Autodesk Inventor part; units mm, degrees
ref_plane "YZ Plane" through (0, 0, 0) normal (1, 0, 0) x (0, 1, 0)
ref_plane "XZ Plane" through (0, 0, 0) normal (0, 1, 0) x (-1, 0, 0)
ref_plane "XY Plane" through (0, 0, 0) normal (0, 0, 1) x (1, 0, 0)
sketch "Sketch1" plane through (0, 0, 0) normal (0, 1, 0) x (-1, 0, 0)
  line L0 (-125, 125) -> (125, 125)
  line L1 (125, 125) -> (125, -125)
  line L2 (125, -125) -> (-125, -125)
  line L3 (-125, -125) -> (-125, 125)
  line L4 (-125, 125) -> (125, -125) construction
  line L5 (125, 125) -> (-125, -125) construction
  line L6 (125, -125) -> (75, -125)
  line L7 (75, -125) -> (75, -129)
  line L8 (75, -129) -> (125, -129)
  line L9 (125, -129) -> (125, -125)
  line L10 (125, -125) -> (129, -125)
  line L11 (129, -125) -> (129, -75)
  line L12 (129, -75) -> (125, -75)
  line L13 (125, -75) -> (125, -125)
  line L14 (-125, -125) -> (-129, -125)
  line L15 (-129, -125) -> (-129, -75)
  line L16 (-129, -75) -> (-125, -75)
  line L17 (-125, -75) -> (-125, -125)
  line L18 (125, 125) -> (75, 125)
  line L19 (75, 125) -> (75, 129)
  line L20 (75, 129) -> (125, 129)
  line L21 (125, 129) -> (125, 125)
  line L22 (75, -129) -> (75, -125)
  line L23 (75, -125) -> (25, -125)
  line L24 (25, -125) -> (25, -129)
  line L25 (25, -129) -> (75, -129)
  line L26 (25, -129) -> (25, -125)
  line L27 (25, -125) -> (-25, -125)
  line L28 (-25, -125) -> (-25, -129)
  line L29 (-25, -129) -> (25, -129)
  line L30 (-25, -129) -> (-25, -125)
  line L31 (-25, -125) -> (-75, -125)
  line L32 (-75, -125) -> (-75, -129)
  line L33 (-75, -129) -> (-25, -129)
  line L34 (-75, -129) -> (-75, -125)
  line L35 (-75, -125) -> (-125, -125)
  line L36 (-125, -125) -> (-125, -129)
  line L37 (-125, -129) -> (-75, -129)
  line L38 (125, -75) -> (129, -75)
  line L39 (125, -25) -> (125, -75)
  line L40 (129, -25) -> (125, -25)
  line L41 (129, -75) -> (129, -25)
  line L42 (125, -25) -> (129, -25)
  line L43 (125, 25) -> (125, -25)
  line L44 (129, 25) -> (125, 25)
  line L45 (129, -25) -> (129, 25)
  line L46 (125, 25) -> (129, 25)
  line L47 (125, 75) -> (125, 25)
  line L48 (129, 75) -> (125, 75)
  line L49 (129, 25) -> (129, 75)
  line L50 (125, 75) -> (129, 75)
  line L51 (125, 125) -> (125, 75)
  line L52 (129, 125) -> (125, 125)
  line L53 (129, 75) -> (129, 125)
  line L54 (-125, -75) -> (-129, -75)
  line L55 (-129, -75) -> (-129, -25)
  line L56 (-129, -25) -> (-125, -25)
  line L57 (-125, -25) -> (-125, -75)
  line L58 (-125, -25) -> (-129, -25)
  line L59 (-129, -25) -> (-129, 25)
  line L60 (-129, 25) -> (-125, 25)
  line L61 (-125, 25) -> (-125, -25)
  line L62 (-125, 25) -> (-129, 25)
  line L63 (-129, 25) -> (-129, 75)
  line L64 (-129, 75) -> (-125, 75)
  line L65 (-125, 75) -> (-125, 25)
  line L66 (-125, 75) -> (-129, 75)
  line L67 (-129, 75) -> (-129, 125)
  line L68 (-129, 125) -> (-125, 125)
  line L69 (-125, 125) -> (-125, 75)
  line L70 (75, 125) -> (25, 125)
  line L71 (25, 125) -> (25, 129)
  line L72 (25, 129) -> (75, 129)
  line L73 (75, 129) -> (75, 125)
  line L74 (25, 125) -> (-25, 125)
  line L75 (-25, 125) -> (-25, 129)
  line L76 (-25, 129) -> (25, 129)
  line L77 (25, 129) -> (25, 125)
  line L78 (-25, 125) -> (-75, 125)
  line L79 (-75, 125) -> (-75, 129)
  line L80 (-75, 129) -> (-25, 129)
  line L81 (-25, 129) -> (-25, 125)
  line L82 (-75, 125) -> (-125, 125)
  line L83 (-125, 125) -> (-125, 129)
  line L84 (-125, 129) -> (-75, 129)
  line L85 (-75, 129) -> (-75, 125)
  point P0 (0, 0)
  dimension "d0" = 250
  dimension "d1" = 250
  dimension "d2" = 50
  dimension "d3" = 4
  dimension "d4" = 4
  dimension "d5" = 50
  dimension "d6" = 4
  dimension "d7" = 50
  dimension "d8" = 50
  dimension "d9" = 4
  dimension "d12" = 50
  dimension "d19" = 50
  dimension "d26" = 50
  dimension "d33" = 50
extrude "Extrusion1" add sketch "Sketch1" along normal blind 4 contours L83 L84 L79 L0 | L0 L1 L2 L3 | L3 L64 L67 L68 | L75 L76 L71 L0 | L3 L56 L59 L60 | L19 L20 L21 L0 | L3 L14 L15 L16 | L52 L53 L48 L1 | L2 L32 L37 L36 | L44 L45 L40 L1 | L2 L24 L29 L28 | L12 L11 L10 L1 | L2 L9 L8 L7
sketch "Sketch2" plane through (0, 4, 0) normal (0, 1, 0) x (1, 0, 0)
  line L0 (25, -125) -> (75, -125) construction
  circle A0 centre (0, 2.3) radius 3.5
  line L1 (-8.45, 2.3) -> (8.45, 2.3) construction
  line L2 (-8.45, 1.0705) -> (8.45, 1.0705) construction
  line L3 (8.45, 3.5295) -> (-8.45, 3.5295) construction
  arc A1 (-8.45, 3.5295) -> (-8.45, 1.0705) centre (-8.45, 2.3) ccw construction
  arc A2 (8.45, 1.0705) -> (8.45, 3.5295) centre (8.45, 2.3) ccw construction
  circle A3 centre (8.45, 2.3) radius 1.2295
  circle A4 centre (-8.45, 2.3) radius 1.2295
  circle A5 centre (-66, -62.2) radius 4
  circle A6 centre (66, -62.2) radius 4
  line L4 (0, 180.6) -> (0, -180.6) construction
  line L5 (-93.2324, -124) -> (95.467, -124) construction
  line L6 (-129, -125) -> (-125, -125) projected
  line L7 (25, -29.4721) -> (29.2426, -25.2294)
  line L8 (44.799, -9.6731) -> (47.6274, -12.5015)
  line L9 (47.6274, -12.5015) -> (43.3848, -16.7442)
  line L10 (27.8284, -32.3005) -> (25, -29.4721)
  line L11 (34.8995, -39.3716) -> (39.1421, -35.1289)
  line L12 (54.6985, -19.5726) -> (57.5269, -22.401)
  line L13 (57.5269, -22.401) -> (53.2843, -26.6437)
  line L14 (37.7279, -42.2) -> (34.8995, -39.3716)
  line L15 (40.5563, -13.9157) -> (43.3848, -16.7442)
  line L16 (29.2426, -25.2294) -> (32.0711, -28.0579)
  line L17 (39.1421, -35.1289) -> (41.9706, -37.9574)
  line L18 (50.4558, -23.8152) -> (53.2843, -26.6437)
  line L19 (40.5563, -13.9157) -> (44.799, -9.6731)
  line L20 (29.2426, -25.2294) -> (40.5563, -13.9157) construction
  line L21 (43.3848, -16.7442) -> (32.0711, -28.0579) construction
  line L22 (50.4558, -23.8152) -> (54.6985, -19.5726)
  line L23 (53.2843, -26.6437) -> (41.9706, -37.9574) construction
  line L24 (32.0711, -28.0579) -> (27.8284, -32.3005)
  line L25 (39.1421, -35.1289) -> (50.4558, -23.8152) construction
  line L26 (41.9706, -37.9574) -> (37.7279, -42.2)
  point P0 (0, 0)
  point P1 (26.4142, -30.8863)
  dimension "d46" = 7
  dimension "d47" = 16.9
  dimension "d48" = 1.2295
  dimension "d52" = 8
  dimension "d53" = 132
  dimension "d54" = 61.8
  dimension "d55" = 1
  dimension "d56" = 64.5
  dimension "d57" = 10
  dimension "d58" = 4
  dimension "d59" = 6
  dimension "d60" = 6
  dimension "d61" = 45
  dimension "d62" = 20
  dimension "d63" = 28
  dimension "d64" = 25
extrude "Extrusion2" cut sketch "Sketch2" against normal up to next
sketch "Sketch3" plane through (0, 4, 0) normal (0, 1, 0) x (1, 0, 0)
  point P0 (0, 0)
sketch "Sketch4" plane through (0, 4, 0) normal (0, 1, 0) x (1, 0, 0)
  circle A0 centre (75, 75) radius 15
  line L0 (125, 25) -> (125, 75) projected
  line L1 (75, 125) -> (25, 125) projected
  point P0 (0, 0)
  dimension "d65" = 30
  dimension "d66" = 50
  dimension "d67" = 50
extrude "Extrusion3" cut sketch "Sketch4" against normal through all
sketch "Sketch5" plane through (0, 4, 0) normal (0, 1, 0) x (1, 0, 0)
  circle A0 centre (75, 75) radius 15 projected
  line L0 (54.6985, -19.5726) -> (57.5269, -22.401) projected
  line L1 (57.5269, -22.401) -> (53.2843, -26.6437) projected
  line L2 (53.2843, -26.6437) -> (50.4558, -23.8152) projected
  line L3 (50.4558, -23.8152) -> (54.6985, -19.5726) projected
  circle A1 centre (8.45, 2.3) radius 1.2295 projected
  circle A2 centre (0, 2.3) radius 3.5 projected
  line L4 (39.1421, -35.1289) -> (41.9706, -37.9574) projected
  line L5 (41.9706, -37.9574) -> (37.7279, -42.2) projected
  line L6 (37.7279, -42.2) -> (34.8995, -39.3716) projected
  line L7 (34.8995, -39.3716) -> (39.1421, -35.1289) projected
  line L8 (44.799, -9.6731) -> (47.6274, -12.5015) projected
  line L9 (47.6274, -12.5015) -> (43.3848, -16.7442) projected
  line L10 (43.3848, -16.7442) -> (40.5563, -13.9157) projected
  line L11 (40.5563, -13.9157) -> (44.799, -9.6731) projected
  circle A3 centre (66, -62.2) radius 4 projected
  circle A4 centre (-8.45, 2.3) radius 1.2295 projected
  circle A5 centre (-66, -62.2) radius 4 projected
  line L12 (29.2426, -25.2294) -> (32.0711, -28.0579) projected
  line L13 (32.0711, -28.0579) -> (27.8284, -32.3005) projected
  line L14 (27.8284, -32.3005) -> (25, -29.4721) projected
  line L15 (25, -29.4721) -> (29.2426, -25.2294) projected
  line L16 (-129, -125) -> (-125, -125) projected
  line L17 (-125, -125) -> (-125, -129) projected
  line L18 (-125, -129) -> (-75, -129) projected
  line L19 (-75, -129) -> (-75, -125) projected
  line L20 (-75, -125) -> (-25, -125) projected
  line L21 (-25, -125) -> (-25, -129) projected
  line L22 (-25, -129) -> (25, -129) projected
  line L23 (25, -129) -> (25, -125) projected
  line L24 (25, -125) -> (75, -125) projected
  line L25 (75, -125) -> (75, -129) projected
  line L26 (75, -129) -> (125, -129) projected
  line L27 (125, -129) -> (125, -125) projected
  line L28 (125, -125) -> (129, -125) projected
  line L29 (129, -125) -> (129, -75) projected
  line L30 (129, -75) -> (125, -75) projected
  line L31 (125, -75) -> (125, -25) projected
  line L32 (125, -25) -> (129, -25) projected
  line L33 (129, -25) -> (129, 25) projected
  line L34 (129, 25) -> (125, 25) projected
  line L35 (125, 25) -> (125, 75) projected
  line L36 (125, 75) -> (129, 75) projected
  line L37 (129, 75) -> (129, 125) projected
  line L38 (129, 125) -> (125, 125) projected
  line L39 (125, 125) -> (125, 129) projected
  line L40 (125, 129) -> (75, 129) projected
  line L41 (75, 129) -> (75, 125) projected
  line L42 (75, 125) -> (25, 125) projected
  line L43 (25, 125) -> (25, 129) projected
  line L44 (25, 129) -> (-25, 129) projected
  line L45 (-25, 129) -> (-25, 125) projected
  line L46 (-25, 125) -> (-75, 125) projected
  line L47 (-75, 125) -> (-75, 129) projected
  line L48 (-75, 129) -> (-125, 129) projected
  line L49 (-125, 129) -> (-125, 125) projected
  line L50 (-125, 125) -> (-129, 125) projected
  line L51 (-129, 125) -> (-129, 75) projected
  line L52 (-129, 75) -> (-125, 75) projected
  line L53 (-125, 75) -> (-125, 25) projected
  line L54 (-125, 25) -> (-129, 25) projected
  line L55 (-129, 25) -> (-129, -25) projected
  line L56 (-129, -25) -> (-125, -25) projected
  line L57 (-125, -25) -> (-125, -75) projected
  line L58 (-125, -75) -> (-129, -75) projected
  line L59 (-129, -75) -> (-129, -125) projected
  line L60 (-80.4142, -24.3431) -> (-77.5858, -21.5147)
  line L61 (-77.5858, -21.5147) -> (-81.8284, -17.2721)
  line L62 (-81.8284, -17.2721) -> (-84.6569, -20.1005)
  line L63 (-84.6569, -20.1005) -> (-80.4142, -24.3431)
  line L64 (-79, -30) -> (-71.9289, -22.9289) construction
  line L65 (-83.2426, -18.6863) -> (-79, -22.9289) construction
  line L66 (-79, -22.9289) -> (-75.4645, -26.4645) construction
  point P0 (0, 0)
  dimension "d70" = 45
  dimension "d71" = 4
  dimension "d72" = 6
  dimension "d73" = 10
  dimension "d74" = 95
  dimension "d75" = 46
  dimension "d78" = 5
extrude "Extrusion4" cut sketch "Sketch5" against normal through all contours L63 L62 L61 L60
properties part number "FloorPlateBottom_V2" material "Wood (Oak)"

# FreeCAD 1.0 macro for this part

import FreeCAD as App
import Part
import Sketcher
Q = App.Units.Quantity

doc = App.newDocument("Part")
body = doc.addObject("PartDesign::Body", "Body")

sketch1 = body.newObject("Sketcher::SketchObject", "Sketch")
sketch1.AttachmentSupport = (doc.getObject("XZ_Plane"), [""])
sketch1.MapMode = "FlatFace"
sketch1.addGeometry([
    Part.LineSegment(App.Vector(125, 129, 0), App.Vector(125, 125, 0)),
    Part.LineSegment(App.Vector(125, 125, 0), App.Vector(129, 125, 0)),
    Part.LineSegment(App.Vector(129, 125, 0), App.Vector(129, 75, 0)),
    Part.LineSegment(App.Vector(129, 75, 0), App.Vector(125, 75, 0)),
    Part.LineSegment(App.Vector(125, 75, 0), App.Vector(125, 25, 0)),
    Part.LineSegment(App.Vector(125, 25, 0), App.Vector(129, 25, 0)),
    Part.LineSegment(App.Vector(129, 25, 0), App.Vector(129, -25, 0)),
    Part.LineSegment(App.Vector(129, -25, 0), App.Vector(125, -25, 0)),
    Part.LineSegment(App.Vector(125, -25, 0), App.Vector(125, -75, 0)),
    Part.LineSegment(App.Vector(125, -75, 0), App.Vector(129, -75, 0)),
    Part.LineSegment(App.Vector(129, -75, 0), App.Vector(129, -125, 0)),
    Part.LineSegment(App.Vector(129, -125, 0), App.Vector(125, -125, 0)),
    Part.LineSegment(App.Vector(125, -125, 0), App.Vector(125, -129, 0)),
    Part.LineSegment(App.Vector(125, -129, 0), App.Vector(75, -129, 0)),
    Part.LineSegment(App.Vector(75, -129, 0), App.Vector(75, -125, 0)),
    Part.LineSegment(App.Vector(75, -125, 0), App.Vector(25, -125, 0)),
    Part.LineSegment(App.Vector(25, -125, 0), App.Vector(25, -129, 0)),
    Part.LineSegment(App.Vector(25, -129, 0), App.Vector(-25, -129, 0)),
    Part.LineSegment(App.Vector(-25, -129, 0), App.Vector(-25, -125, 0)),
    Part.LineSegment(App.Vector(-25, -125, 0), App.Vector(-75, -125, 0)),
    Part.LineSegment(App.Vector(-75, -125, 0), App.Vector(-75, -129, 0)),
    Part.LineSegment(App.Vector(-75, -129, 0), App.Vector(-125, -129, 0)),
    Part.LineSegment(App.Vector(-125, -129, 0), App.Vector(-125, -125, 0)),
    Part.LineSegment(App.Vector(-125, -125, 0), App.Vector(-129, -125, 0)),
    Part.LineSegment(App.Vector(-129, -125, 0), App.Vector(-129, -75, 0)),
    Part.LineSegment(App.Vector(-129, -75, 0), App.Vector(-125, -75, 0)),
    Part.LineSegment(App.Vector(-125, -75, 0), App.Vector(-125, -25, 0)),
    Part.LineSegment(App.Vector(-125, -25, 0), App.Vector(-129, -25, 0)),
    Part.LineSegment(App.Vector(-129, -25, 0), App.Vector(-129, 25, 0)),
    Part.LineSegment(App.Vector(-129, 25, 0), App.Vector(-125, 25, 0)),
    Part.LineSegment(App.Vector(-125, 25, 0), App.Vector(-125, 75, 0)),
    Part.LineSegment(App.Vector(-125, 75, 0), App.Vector(-129, 75, 0)),
    Part.LineSegment(App.Vector(-129, 75, 0), App.Vector(-129, 125, 0)),
    Part.LineSegment(App.Vector(-129, 125, 0), App.Vector(-125, 125, 0)),
    Part.LineSegment(App.Vector(-125, 125, 0), App.Vector(-125, 129, 0)),
    Part.LineSegment(App.Vector(-125, 129, 0), App.Vector(-75, 129, 0)),
    Part.LineSegment(App.Vector(-75, 129, 0), App.Vector(-75, 125, 0)),
    Part.LineSegment(App.Vector(-75, 125, 0), App.Vector(-25, 125, 0)),
    Part.LineSegment(App.Vector(-25, 125, 0), App.Vector(-25, 129, 0)),
    Part.LineSegment(App.Vector(-25, 129, 0), App.Vector(25, 129, 0)),
    Part.LineSegment(App.Vector(25, 129, 0), App.Vector(25, 125, 0)),
    Part.LineSegment(App.Vector(25, 125, 0), App.Vector(75, 125, 0)),
    Part.LineSegment(App.Vector(75, 125, 0), App.Vector(75, 129, 0)),
    Part.LineSegment(App.Vector(75, 129, 0), App.Vector(125, 129, 0)),
], False)
sketch1.addConstraint([
    Sketcher.Constraint("Coincident", 0, 2, 1, 1),
    Sketcher.Constraint("Coincident", 1, 2, 2, 1),
    Sketcher.Constraint("Coincident", 2, 2, 3, 1),
    Sketcher.Constraint("Coincident", 3, 2, 4, 1),
    Sketcher.Constraint("Coincident", 4, 2, 5, 1),
    Sketcher.Constraint("Coincident", 5, 2, 6, 1),
    Sketcher.Constraint("Coincident", 6, 2, 7, 1),
    Sketcher.Constraint("Coincident", 7, 2, 8, 1),
    Sketcher.Constraint("Coincident", 8, 2, 9, 1),
    Sketcher.Constraint("Coincident", 9, 2, 10, 1),
    Sketcher.Constraint("Coincident", 10, 2, 11, 1),
    Sketcher.Constraint("Coincident", 11, 2, 12, 1),
    Sketcher.Constraint("Coincident", 12, 2, 13, 1),
    Sketcher.Constraint("Coincident", 13, 2, 14, 1),
    Sketcher.Constraint("Coincident", 14, 2, 15, 1),
    Sketcher.Constraint("Coincident", 15, 2, 16, 1),
    Sketcher.Constraint("Coincident", 16, 2, 17, 1),
    Sketcher.Constraint("Coincident", 17, 2, 18, 1),
    Sketcher.Constraint("Coincident", 18, 2, 19, 1),
    Sketcher.Constraint("Coincident", 19, 2, 20, 1),
    Sketcher.Constraint("Coincident", 20, 2, 21, 1),
    Sketcher.Constraint("Coincident", 21, 2, 22, 1),
    Sketcher.Constraint("Coincident", 22, 2, 23, 1),
    Sketcher.Constraint("Coincident", 23, 2, 24, 1),
    Sketcher.Constraint("Coincident", 24, 2, 25, 1),
    Sketcher.Constraint("Coincident", 25, 2, 26, 1),
    Sketcher.Constraint("Coincident", 26, 2, 27, 1),
    Sketcher.Constraint("Coincident", 27, 2, 28, 1),
    Sketcher.Constraint("Coincident", 28, 2, 29, 1),
    Sketcher.Constraint("Coincident", 29, 2, 30, 1),
    Sketcher.Constraint("Coincident", 30, 2, 31, 1),
    Sketcher.Constraint("Coincident", 31, 2, 32, 1),
    Sketcher.Constraint("Coincident", 32, 2, 33, 1),
    Sketcher.Constraint("Coincident", 33, 2, 34, 1),
    Sketcher.Constraint("Coincident", 34, 2, 35, 1),
    Sketcher.Constraint("Coincident", 35, 2, 36, 1),
    Sketcher.Constraint("Coincident", 36, 2, 37, 1),
    Sketcher.Constraint("Coincident", 37, 2, 38, 1),
    Sketcher.Constraint("Coincident", 38, 2, 39, 1),
    Sketcher.Constraint("Coincident", 39, 2, 40, 1),
    Sketcher.Constraint("Coincident", 40, 2, 41, 1),
    Sketcher.Constraint("Coincident", 41, 2, 42, 1),
    Sketcher.Constraint("Coincident", 42, 2, 43, 1),
    Sketcher.Constraint("Coincident", 43, 2, 0, 1),
    Sketcher.Constraint("Vertical", 0),
    Sketcher.Constraint("Horizontal", 1),
    Sketcher.Constraint("Vertical", 2),
    Sketcher.Constraint("Horizontal", 3),
    Sketcher.Constraint("Vertical", 4),
    Sketcher.Constraint("Horizontal", 5),
    Sketcher.Constraint("Vertical", 6),
    Sketcher.Constraint("Horizontal", 7),
    Sketcher.Constraint("Vertical", 8),
    Sketcher.Constraint("Horizontal", 9),
    Sketcher.Constraint("Vertical", 10),
    Sketcher.Constraint("Horizontal", 11),
    Sketcher.Constraint("Vertical", 12),
    Sketcher.Constraint("Horizontal", 13),
    Sketcher.Constraint("Vertical", 14),
    Sketcher.Constraint("Horizontal", 15),
    Sketcher.Constraint("Vertical", 16),
    Sketcher.Constraint("Horizontal", 17),
    Sketcher.Constraint("Vertical", 18),
    Sketcher.Constraint("Horizontal", 19),
    Sketcher.Constraint("Vertical", 20),
    Sketcher.Constraint("Horizontal", 21),
    Sketcher.Constraint("Vertical", 22),
    Sketcher.Constraint("Horizontal", 23),
    Sketcher.Constraint("Vertical", 24),
    Sketcher.Constraint("Horizontal", 25),
    Sketcher.Constraint("Vertical", 26),
    Sketcher.Constraint("Horizontal", 27),
    Sketcher.Constraint("Vertical", 28),
    Sketcher.Constraint("Horizontal", 29),
    Sketcher.Constraint("Vertical", 30),
    Sketcher.Constraint("Horizontal", 31),
    Sketcher.Constraint("Vertical", 32),
    Sketcher.Constraint("Horizontal", 33),
    Sketcher.Constraint("Vertical", 34),
    Sketcher.Constraint("Horizontal", 35),
    Sketcher.Constraint("Vertical", 36),
    Sketcher.Constraint("Horizontal", 37),
    Sketcher.Constraint("Vertical", 38),
    Sketcher.Constraint("Horizontal", 39),
    Sketcher.Constraint("Vertical", 40),
    Sketcher.Constraint("Horizontal", 41),
    Sketcher.Constraint("Vertical", 42),
    Sketcher.Constraint("Horizontal", 43),
    Sketcher.Constraint("Symmetric", 0, 2, 22, 2, -1, 1),
    Sketcher.Constraint("Symmetric", 2, 2, 24, 2, -1, 1),
    Sketcher.Constraint("Symmetric", 4, 2, 26, 2, -1, 1),
    Sketcher.Constraint("Symmetric", 6, 2, 28, 2, -1, 1),
    Sketcher.Constraint("Symmetric", 8, 2, 30, 2, -1, 1),
    Sketcher.Constraint("Symmetric", 10, 2, 32, 2, -1, 1),
    Sketcher.Constraint("Symmetric", 12, 2, 34, 2, -1, 1),
    Sketcher.Constraint("Symmetric", 14, 2, 36, 2, -1, 1),
    Sketcher.Constraint("Symmetric", 16, 2, 38, 2, -1, 1),
    Sketcher.Constraint("Symmetric", 18, 2, 40, 2, -1, 1),
    Sketcher.Constraint("Symmetric", 20, 2, 42, 2, -1, 1),
    Sketcher.Constraint("Symmetric", 15, 2, 18, 2, -2),
    Sketcher.Constraint("Symmetric", 13, 2, 20, 2, -2),
    Sketcher.Constraint("Symmetric", 11, 2, 22, 2, -2),
    Sketcher.Constraint("Symmetric", 9, 2, 24, 2, -2),
    Sketcher.Constraint("Symmetric", 7, 2, 26, 2, -2),
    Sketcher.Constraint("Horizontal", 11, 2, 14, 2),
    Sketcher.Constraint("Horizontal", 13, 2, 16, 2),
    Sketcher.Constraint("Vertical", 0, 2, 3, 2),
    Sketcher.Constraint("Vertical", 2, 2, 5, 2),
    Sketcher.Constraint("Equal", 13, 15),
    Sketcher.Constraint("Equal", 15, 17),
    Sketcher.Constraint("Equal", 33, 0),
    Sketcher.Constraint("Equal", 43, 2),
    Sketcher.Constraint("Equal", 2, 4),
    Sketcher.Constraint("Equal", 4, 6),
    Sketcher.Constraint("DistanceX", 1, 1, 1, 2, Q("4 mm")),
    Sketcher.Constraint("DistanceX", 13, 2, 13, 1, Q("50 mm")),
])
pad1 = body.newObject("PartDesign::Pad", "Pad")
pad1.Profile = sketch1
pad1.Length = 4
pad1.Reversed = True

sketch2 = body.newObject("Sketcher::SketchObject", "Sketch001")
sketch2.AttachmentSupport = (doc.getObject("XZ_Plane"), [""])
sketch2.MapMode = "FlatFace"
sketch2.AttachmentOffset = App.Placement(App.Vector(0, 0, -4), App.Rotation())
sketch2.addGeometry([
    Part.Circle(App.Vector(0, -2.3, 0), App.Vector(0, 0, 1), 3.5),
    Part.Circle(App.Vector(8.4, -2.3, 0), App.Vector(0, 0, 1), 1.2),
    Part.Circle(App.Vector(-8.4, -2.3, 0), App.Vector(0, 0, 1), 1.2),
    Part.Circle(App.Vector(-66, 62.2, 0), App.Vector(0, 0, 1), 4),
    Part.Circle(App.Vector(66, 62.2, 0), App.Vector(0, 0, 1), 4),
    Part.LineSegment(App.Vector(29.2, 25.2, 0), App.Vector(25, 29.5, 0)),
    Part.LineSegment(App.Vector(25, 29.5, 0), App.Vector(27.8, 32.3, 0)),
    Part.LineSegment(App.Vector(27.8, 32.3, 0), App.Vector(32.1, 28.1, 0)),
    Part.LineSegment(App.Vector(32.1, 28.1, 0), App.Vector(29.2, 25.2, 0)),
    Part.LineSegment(App.Vector(47.6, 12.5, 0), App.Vector(44.8, 9.7, 0)),
    Part.LineSegment(App.Vector(44.8, 9.7, 0), App.Vector(40.6, 13.9, 0)),
    Part.LineSegment(App.Vector(40.6, 13.9, 0), App.Vector(43.4, 16.7, 0)),
    Part.LineSegment(App.Vector(43.4, 16.7, 0), App.Vector(47.6, 12.5, 0)),
    Part.LineSegment(App.Vector(39.1, 35.1, 0), App.Vector(34.9, 39.4, 0)),
    Part.LineSegment(App.Vector(34.9, 39.4, 0), App.Vector(37.7, 42.2, 0)),
    Part.LineSegment(App.Vector(37.7, 42.2, 0), App.Vector(42, 38, 0)),
    Part.LineSegment(App.Vector(42, 38, 0), App.Vector(39.1, 35.1, 0)),
    Part.LineSegment(App.Vector(57.5, 22.4, 0), App.Vector(54.7, 19.6, 0)),
    Part.LineSegment(App.Vector(54.7, 19.6, 0), App.Vector(50.5, 23.8, 0)),
    Part.LineSegment(App.Vector(50.5, 23.8, 0), App.Vector(53.3, 26.6, 0)),
    Part.LineSegment(App.Vector(53.3, 26.6, 0), App.Vector(57.5, 22.4, 0)),
], False)
sketch2.addConstraint([
    Sketcher.Constraint("Coincident", 5, 2, 6, 1),
    Sketcher.Constraint("Coincident", 6, 2, 7, 1),
    Sketcher.Constraint("Coincident", 7, 2, 8, 1),
    Sketcher.Constraint("Coincident", 8, 2, 5, 1),
    Sketcher.Constraint("Coincident", 9, 2, 10, 1),
    Sketcher.Constraint("Coincident", 10, 2, 11, 1),
    Sketcher.Constraint("Coincident", 11, 2, 12, 1),
    Sketcher.Constraint("Coincident", 12, 2, 9, 1),
    Sketcher.Constraint("Coincident", 13, 2, 14, 1),
    Sketcher.Constraint("Coincident", 14, 2, 15, 1),
    Sketcher.Constraint("Coincident", 15, 2, 16, 1),
    Sketcher.Constraint("Coincident", 16, 2, 13, 1),
    Sketcher.Constraint("Coincident", 17, 2, 18, 1),
    Sketcher.Constraint("Coincident", 18, 2, 19, 1),
    Sketcher.Constraint("Coincident", 19, 2, 20, 1),
    Sketcher.Constraint("Coincident", 20, 2, 17, 1),
    Sketcher.Constraint("Equal", 1, 2),
    Sketcher.Constraint("Equal", 3, 4),
    Sketcher.Constraint("Symmetric", 1, 3, 2, 3, -2),
    Sketcher.Constraint("Symmetric", 3, 3, 4, 3, -2),
    Sketcher.Constraint("PointOnObject", 0, 3, -2),
    Sketcher.Constraint("Perpendicular", 5, 6),
    Sketcher.Constraint("Perpendicular", 6, 7),
    Sketcher.Constraint("Perpendicular", 7, 8),
    Sketcher.Constraint("Parallel", 8, 9),
    Sketcher.Constraint("Perpendicular", 9, 10),
    Sketcher.Constraint("Perpendicular", 10, 11),
    Sketcher.Constraint("Perpendicular", 11, 12),
    Sketcher.Constraint("Parallel", 12, 13),
    Sketcher.Constraint("Perpendicular", 13, 14),
    Sketcher.Constraint("Perpendicular", 14, 15),
    Sketcher.Constraint("Perpendicular", 15, 16),
    Sketcher.Constraint("Parallel", 16, 17),
    Sketcher.Constraint("Perpendicular", 17, 18),
    Sketcher.Constraint("Perpendicular", 18, 19),
    Sketcher.Constraint("Perpendicular", 19, 20),
    Sketcher.Constraint("Horizontal", 0, 3, 1, 3),
    Sketcher.Constraint("Equal", 8, 9),
    Sketcher.Constraint("Equal", 7, 10),
    Sketcher.Constraint("Equal", 12, 13),
    Sketcher.Constraint("Equal", 11, 14),
    Sketcher.Constraint("Equal", 16, 17),
    Sketcher.Constraint("Equal", 15, 18),
    Sketcher.Constraint("Diameter", 0, Q("7 mm")),
    Sketcher.Constraint("Diameter", 3, Q("8 mm")),
    Sketcher.Constraint("Angle", 6, Q("45 deg")),
    Sketcher.Constraint("Distance", 5, Q("6 mm")),
    Sketcher.Constraint("Distance", 6, Q("4 mm")),
    Sketcher.Constraint("Diameter", 1, Q("2.459 mm")),
    Sketcher.Constraint("DistanceX", -1, 1, 5, 2, Q("25 mm")),
    Sketcher.Constraint("DistanceX", 3, 3, 4, 3, Q("132 mm")),
    Sketcher.Constraint("DistanceX", 2, 3, 1, 3, Q("16.9 mm")),
    Sketcher.Constraint("DistanceY", 2, 3, 3, 3, Q("64.5 mm")),
    Sketcher.Constraint("DistanceY", 0, 3, -1, 1, Q("2.3 mm")),
    Sketcher.Constraint("DistanceY", -1, 1, 14, 2, Q("42.2 mm")),
    Sketcher.Constraint("DistanceY", -1, 1, 5, 2, Q("29.472 mm")),
    Sketcher.Constraint("DistanceX", -1, 1, 9, 2, Q("44.799 mm")),
    Sketcher.Constraint("DistanceY", -1, 1, 9, 2, Q("9.673 mm")),
    Sketcher.Constraint("DistanceX", -1, 1, 14, 2, Q("37.728 mm")),
    Sketcher.Constraint("DistanceX", -1, 1, 20, 2, Q("57.527 mm")),
    Sketcher.Constraint("DistanceY", -1, 1, 20, 2, Q("22.401 mm")),
])
pocket1 = body.newObject("PartDesign::Pocket", "Pocket")
pocket1.Profile = sketch2
pocket1.Length = 4
pocket1.Reversed = True

sketch3 = body.newObject("Sketcher::SketchObject", "Sketch002")
sketch3.AttachmentSupport = (doc.getObject("XZ_Plane"), [""])
sketch3.MapMode = "FlatFace"
sketch3.AttachmentOffset = App.Placement(App.Vector(0, 0, -4), App.Rotation())
sketch3.addGeometry(Part.Circle(App.Vector(75, -75, 0), App.Vector(0, 0, 1), 15), False)
sketch3.addConstraint([
    Sketcher.Constraint("Diameter", 0, Q("30 mm")),
    Sketcher.Constraint("DistanceX", -1, 1, 0, 3, Q("75 mm")),
    Sketcher.Constraint("DistanceY", 0, 3, -1, 1, Q("75 mm")),
])
pocket2 = body.newObject("PartDesign::Pocket", "Pocket001")
pocket2.Profile = sketch3
pocket2.Type = "ThroughAll"
pocket2.Reversed = True

sketch4 = body.newObject("Sketcher::SketchObject", "Sketch003")
sketch4.AttachmentSupport = (doc.getObject("XZ_Plane"), [""])
sketch4.MapMode = "FlatFace"
sketch4.AttachmentOffset = App.Placement(App.Vector(0, 0, -4), App.Rotation())
sketch4.addGeometry([
    Part.LineSegment(App.Vector(-84.7, 20.1, 0), App.Vector(-80.4, 24.3, 0)),
    Part.LineSegment(App.Vector(-80.4, 24.3, 0), App.Vector(-77.6, 21.5, 0)),
    Part.LineSegment(App.Vector(-77.6, 21.5, 0), App.Vector(-81.8, 17.3, 0)),
    Part.LineSegment(App.Vector(-81.8, 17.3, 0), App.Vector(-84.7, 20.1, 0)),
], False)
sketch4.addConstraint([
    Sketcher.Constraint("Coincident", 0, 2, 1, 1),
    Sketcher.Constraint("Coincident", 1, 2, 2, 1),
    Sketcher.Constraint("Coincident", 2, 2, 3, 1),
    Sketcher.Constraint("Coincident", 3, 2, 0, 1),
    Sketcher.Constraint("Perpendicular", 0, 1),
    Sketcher.Constraint("Perpendicular", 1, 2),
    Sketcher.Constraint("Perpendicular", 2, 3),
    Sketcher.Constraint("Angle", 1, Q("-45 deg")),
    Sketcher.Constraint("Distance", 0, Q("6 mm")),
    Sketcher.Constraint("Distance", 1, Q("4 mm")),
    Sketcher.Constraint("DistanceY", -1, 1, 0, 2, Q("24.343 mm")),
    Sketcher.Constraint("DistanceX", 3, 2, -1, 1, Q("84.657 mm")),
])
pocket3 = body.newObject("PartDesign::Pocket", "Pocket002")
pocket3.Profile = sketch4
pocket3.Type = "ThroughAll"
pocket3.Reversed = True

doc.recompute()
